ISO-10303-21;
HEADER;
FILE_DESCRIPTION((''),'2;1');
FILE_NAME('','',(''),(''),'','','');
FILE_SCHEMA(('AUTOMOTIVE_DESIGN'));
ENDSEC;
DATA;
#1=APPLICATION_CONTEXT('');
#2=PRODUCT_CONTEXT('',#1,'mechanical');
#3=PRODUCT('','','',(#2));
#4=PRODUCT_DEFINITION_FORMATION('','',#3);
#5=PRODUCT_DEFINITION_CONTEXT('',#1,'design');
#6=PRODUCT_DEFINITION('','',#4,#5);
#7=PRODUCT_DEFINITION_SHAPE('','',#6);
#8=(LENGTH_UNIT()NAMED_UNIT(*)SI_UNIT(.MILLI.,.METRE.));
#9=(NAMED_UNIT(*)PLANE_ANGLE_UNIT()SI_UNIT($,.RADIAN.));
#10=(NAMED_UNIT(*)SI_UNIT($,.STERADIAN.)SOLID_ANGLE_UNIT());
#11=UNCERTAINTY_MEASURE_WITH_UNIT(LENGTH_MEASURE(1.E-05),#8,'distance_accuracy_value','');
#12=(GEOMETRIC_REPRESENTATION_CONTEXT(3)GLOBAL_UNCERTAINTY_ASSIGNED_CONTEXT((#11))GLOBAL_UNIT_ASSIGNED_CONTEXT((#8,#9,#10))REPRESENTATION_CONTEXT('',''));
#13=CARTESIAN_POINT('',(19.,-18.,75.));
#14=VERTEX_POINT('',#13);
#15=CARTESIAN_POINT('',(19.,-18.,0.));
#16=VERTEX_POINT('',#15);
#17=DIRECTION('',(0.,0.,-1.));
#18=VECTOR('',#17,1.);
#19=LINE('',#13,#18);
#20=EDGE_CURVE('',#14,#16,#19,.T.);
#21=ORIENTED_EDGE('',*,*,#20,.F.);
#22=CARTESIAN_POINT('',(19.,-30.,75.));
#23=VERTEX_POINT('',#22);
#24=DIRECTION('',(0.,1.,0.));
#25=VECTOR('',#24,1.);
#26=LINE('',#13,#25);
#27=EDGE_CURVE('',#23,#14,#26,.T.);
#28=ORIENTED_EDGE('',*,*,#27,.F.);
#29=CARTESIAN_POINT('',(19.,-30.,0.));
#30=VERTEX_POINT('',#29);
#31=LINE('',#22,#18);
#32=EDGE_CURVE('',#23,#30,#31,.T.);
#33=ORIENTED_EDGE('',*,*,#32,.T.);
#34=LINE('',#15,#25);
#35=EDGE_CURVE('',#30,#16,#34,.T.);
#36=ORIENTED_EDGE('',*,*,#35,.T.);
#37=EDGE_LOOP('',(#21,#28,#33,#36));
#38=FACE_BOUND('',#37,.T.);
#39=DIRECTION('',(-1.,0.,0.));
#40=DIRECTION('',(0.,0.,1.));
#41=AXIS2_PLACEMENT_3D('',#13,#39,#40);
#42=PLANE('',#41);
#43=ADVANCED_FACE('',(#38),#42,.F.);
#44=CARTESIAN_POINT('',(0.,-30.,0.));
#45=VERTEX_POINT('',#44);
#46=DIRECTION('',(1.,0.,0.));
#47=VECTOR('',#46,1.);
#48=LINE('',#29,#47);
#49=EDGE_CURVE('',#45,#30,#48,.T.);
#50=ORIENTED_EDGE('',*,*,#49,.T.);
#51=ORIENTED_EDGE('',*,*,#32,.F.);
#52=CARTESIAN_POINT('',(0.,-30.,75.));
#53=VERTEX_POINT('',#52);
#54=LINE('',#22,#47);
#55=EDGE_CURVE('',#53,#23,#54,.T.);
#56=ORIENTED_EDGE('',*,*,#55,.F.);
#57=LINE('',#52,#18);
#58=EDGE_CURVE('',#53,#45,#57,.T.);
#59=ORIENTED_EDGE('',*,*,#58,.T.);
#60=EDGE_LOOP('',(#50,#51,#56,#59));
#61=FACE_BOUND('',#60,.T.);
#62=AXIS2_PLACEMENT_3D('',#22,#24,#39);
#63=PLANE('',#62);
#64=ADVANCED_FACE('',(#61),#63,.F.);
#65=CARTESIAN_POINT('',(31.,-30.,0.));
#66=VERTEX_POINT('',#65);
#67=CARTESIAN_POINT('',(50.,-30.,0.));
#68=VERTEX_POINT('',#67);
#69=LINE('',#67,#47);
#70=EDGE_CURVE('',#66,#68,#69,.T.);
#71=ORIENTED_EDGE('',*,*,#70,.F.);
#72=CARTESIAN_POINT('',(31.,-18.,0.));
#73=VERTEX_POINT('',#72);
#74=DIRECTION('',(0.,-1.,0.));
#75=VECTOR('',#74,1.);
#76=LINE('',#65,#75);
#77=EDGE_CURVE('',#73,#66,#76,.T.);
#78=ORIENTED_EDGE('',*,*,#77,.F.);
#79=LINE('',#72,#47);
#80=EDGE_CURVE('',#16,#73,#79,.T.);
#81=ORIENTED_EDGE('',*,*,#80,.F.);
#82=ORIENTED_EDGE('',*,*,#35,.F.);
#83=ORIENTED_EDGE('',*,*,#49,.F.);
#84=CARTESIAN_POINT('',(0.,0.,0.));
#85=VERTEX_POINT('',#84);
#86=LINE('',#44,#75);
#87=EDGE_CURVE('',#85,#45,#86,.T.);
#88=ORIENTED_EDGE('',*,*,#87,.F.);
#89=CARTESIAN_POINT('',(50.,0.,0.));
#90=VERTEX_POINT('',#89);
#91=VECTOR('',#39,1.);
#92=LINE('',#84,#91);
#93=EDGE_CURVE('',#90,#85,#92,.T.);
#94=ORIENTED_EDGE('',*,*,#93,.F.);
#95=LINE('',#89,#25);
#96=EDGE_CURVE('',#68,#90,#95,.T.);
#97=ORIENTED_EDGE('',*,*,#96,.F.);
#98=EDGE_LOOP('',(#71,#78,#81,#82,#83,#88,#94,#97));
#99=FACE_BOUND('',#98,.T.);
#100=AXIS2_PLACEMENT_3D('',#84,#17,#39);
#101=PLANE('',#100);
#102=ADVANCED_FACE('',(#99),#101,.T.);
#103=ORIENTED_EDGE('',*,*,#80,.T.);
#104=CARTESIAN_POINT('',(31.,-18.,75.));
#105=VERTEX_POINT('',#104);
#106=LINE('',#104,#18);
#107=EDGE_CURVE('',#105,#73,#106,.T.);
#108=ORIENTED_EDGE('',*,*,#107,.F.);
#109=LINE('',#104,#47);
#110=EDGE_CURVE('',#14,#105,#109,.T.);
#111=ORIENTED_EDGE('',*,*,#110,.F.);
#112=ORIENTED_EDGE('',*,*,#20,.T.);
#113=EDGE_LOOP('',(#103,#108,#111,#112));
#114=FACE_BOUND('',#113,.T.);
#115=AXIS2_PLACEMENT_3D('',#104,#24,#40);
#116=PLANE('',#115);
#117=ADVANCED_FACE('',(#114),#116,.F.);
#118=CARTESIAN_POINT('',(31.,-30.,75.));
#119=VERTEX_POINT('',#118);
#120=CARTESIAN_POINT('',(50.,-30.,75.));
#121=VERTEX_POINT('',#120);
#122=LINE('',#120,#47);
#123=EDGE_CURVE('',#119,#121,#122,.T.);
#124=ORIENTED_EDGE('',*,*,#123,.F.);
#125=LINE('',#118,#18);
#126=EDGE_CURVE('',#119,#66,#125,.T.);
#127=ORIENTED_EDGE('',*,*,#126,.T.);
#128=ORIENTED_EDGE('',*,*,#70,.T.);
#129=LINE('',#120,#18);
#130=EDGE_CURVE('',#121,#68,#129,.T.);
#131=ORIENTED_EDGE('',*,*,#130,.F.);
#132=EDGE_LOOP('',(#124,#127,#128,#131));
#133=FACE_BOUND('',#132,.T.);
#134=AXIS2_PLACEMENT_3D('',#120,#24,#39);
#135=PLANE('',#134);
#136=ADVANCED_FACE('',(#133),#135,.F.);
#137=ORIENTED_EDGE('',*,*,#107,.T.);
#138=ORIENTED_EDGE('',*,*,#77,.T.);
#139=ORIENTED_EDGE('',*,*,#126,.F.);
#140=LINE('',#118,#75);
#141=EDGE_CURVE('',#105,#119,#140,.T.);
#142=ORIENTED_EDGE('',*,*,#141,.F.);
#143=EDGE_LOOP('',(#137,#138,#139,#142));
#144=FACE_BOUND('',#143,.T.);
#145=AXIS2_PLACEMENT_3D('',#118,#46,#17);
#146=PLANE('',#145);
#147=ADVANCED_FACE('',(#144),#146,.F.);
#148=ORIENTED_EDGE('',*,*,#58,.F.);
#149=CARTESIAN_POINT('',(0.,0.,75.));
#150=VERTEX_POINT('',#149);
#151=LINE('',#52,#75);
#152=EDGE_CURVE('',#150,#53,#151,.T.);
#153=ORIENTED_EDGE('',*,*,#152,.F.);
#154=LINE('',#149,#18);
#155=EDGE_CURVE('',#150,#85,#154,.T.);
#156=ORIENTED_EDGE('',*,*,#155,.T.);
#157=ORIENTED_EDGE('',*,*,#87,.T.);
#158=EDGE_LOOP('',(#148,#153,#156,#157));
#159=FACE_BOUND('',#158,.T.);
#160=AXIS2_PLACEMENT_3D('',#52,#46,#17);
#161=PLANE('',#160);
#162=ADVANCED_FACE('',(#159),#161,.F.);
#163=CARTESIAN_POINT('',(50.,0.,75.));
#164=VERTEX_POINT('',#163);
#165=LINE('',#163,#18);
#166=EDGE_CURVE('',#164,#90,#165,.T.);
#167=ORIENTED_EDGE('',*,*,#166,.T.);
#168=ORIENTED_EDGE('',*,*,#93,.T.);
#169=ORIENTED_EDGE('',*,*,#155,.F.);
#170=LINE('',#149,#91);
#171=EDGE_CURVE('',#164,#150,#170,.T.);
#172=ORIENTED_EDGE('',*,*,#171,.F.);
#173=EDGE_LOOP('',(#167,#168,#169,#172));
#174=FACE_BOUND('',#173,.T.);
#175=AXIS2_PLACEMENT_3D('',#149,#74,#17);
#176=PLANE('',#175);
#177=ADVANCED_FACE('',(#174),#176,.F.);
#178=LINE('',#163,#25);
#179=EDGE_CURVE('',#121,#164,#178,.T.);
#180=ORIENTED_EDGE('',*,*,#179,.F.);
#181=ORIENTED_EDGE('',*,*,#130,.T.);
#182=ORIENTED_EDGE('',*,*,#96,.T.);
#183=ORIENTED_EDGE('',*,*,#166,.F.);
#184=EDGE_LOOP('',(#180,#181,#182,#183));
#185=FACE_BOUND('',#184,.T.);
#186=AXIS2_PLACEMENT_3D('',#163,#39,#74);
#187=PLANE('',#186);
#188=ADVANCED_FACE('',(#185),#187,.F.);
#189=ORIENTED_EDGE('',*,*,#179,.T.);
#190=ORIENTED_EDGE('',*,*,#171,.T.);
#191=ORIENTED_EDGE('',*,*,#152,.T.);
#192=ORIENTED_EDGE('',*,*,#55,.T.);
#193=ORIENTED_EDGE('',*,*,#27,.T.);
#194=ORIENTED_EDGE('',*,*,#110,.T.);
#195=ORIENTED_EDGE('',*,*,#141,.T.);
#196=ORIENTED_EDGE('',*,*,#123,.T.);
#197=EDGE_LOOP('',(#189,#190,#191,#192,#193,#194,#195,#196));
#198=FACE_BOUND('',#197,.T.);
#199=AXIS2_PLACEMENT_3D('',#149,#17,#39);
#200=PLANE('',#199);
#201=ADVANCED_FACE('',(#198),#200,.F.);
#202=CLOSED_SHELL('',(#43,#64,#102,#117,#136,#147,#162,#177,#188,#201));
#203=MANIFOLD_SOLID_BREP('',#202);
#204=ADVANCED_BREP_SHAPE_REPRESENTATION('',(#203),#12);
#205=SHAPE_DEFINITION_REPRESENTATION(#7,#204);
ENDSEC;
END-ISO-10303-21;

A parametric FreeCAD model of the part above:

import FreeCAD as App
import Part
import Sketcher
from FreeCAD import Vector

doc = App.newDocument("Part")
body = doc.addObject("PartDesign::Body", "Body")

# Sketch on XY plane
sketch1 = body.newObject("Sketcher::SketchObject", "Sketch")
sketch1.AttachmentSupport = (doc.getObject("XY_Plane"), [""])
sketch1.MapMode = "FlatFace"
sketch1.addGeometry(Part.LineSegment(Vector(50, 0, 0), Vector(0, 0, 0)), False)
sketch1.addGeometry(Part.LineSegment(Vector(0, 0, 0), Vector(0, -30, 0)), False)
sketch1.addGeometry(Part.LineSegment(Vector(0, -30, 0), Vector(19, -30, 0)), False)
sketch1.addGeometry(Part.LineSegment(Vector(19, -30, 0), Vector(19, -18, 0)), False)
sketch1.addGeometry(Part.LineSegment(Vector(19, -18, 0), Vector(31, -18, 0)), False)
sketch1.addGeometry(Part.LineSegment(Vector(31, -18, 0), Vector(31, -30, 0)), False)
sketch1.addGeometry(Part.LineSegment(Vector(31, -30, 0), Vector(50, -30, 0)), False)
sketch1.addGeometry(Part.LineSegment(Vector(50, -30, 0), Vector(50, 0, 0)), False)
sketch1.addConstraint(Sketcher.Constraint("Coincident", 0, 2, 1, 1))
sketch1.addConstraint(Sketcher.Constraint("Coincident", 1, 2, 2, 1))
sketch1.addConstraint(Sketcher.Constraint("Coincident", 2, 2, 3, 1))
sketch1.addConstraint(Sketcher.Constraint("Coincident", 3, 2, 4, 1))
sketch1.addConstraint(Sketcher.Constraint("Coincident", 4, 2, 5, 1))
sketch1.addConstraint(Sketcher.Constraint("Coincident", 5, 2, 6, 1))
sketch1.addConstraint(Sketcher.Constraint("Coincident", 6, 2, 7, 1))
sketch1.addConstraint(Sketcher.Constraint("Coincident", 7, 2, 0, 1))
sketch1.addConstraint(Sketcher.Constraint("Horizontal", 0))
sketch1.addConstraint(Sketcher.Constraint("Vertical", 1))
sketch1.addConstraint(Sketcher.Constraint("Horizontal", 2))
sketch1.addConstraint(Sketcher.Constraint("Vertical", 3))
sketch1.addConstraint(Sketcher.Constraint("Horizontal", 4))
sketch1.addConstraint(Sketcher.Constraint("Vertical", 5))
sketch1.addConstraint(Sketcher.Constraint("Horizontal", 6))
sketch1.addConstraint(Sketcher.Constraint("Vertical", 7))
sketch1.addConstraint(Sketcher.Constraint("Coincident", 0, 2, -1, 1))
sketch1.addConstraint(Sketcher.Constraint("Horizontal", 2, 2, 5, 2))
sketch1.addConstraint(Sketcher.Constraint("Equal", 2, 6))
sketch1.addConstraint(Sketcher.Constraint("Equal", 4, 3))
sketch1.addConstraint(Sketcher.Constraint("DistanceX", 0, 2, 0, 1, 50.0))
sketch1.addConstraint(Sketcher.Constraint("DistanceX", 2, 1, 2, 2, 19.0))
sketch1.addConstraint(Sketcher.Constraint("DistanceY", 1, 2, 1, 1, 30.0))
pad1 = body.newObject("PartDesign::Pad", "Pad")
pad1.Profile = sketch1
pad1.Length = 75

doc.recompute()
